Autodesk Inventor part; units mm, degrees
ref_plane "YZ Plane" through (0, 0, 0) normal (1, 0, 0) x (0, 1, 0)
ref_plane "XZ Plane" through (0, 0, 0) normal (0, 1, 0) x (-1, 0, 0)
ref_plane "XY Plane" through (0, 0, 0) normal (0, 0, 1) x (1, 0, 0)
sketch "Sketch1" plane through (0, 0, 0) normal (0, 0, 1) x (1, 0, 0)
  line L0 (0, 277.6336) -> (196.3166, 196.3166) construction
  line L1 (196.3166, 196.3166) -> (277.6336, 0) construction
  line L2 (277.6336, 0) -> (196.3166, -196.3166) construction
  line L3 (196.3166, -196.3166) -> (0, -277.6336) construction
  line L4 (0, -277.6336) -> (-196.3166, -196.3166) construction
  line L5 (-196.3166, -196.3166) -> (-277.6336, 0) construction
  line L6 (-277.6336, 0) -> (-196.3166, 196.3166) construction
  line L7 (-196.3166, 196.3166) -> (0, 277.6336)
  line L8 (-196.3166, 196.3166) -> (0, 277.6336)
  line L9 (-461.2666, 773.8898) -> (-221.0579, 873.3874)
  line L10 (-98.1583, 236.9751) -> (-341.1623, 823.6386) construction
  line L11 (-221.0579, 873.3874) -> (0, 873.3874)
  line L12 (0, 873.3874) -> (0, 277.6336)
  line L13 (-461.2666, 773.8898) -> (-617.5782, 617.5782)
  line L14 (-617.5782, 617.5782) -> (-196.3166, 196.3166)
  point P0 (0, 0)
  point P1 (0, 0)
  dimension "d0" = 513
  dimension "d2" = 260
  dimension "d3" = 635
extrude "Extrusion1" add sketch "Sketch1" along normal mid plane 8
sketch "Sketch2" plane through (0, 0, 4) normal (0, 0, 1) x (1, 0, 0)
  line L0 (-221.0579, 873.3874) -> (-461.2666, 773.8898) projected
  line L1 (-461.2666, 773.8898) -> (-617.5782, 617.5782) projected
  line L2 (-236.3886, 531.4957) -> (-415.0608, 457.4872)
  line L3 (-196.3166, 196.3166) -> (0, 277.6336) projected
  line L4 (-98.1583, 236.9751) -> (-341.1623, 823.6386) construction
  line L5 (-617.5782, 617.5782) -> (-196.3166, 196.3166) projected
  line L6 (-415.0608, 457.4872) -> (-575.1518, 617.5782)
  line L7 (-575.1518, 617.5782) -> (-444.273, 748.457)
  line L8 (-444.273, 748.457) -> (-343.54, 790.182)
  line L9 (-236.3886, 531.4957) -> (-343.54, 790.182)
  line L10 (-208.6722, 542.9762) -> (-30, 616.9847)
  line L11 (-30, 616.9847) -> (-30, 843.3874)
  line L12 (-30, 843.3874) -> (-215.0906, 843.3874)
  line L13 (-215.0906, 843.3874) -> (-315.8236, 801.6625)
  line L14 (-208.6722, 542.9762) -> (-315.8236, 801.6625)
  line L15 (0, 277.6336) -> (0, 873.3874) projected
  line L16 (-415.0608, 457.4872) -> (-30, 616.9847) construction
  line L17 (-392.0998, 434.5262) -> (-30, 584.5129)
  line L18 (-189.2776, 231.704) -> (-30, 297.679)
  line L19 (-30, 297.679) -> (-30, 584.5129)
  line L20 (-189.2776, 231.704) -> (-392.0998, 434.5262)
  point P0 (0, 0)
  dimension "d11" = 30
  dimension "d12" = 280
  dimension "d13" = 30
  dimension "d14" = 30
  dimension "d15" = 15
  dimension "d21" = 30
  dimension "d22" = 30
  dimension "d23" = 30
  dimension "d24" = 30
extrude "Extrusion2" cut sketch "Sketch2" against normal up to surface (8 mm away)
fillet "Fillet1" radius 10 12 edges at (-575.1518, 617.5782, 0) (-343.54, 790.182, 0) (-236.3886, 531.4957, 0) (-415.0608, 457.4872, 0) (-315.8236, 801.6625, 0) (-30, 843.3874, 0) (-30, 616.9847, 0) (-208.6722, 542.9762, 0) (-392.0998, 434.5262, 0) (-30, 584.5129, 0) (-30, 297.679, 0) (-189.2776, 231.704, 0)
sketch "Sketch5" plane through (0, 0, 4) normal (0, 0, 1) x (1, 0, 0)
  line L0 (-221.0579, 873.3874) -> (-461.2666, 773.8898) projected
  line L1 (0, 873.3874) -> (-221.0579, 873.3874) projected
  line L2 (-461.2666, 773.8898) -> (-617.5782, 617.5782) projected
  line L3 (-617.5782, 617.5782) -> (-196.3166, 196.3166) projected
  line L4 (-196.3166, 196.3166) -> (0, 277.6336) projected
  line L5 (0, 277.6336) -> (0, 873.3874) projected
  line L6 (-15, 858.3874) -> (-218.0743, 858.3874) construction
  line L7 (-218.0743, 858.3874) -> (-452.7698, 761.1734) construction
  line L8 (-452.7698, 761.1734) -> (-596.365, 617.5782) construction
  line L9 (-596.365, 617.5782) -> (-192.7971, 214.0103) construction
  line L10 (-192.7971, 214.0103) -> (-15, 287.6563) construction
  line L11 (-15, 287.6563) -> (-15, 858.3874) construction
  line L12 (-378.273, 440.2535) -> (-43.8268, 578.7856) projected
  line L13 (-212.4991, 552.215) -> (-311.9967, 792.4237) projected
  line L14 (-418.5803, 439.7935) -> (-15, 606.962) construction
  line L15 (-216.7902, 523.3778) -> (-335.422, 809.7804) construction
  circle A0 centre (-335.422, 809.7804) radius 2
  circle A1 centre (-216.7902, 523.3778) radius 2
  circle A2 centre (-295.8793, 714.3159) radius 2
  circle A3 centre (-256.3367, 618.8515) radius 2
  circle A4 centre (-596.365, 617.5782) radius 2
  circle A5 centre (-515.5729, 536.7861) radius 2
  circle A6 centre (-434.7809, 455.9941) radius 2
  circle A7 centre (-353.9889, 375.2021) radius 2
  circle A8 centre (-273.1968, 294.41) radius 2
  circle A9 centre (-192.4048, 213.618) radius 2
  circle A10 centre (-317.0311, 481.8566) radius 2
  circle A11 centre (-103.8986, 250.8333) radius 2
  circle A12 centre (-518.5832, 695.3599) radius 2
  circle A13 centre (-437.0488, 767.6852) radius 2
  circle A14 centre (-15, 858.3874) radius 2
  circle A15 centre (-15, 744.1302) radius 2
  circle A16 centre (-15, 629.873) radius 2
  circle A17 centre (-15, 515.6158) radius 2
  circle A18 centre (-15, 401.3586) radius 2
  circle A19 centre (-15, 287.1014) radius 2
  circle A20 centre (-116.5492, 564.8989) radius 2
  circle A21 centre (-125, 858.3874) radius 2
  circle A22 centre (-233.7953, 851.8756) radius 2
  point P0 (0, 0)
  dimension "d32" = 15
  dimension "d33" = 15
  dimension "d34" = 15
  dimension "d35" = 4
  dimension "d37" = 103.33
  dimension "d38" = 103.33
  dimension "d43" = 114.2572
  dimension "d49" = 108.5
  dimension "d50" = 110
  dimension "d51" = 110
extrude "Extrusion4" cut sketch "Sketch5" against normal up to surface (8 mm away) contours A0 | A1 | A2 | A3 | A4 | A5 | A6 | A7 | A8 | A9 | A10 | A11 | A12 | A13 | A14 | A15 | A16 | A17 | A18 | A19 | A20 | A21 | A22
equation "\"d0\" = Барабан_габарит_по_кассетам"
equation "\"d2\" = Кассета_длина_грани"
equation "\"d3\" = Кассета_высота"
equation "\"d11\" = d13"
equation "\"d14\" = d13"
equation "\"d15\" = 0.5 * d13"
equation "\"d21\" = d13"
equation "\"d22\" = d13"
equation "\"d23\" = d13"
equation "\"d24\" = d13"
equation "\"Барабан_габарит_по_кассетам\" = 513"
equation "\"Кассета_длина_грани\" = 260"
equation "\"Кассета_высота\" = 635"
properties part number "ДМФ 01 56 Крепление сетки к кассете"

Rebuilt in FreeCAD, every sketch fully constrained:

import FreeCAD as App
import Part
import Sketcher
from FreeCAD import Vector
Q = App.Units.Quantity


def edges_at(feature, points):
    """Names of the edges that pass closest to the given points."""
    edges = feature.Shape.Edges
    near = lambda p: min(range(len(edges)), key=lambda i: edges[i].distToShape(Part.Vertex(*p))[0])
    return sorted({f"Edge{near(p) + 1}" for p in points})

doc = App.newDocument("Part")
params = doc.addObject("Spreadsheet::Sheet", "Params")
for row, (alias, value) in enumerate([
    ("sketch1_length", "260 mm"),
    ("pad1_length", "8 mm"),
    ("sketch2_length", "280 mm"),
    ("pocket1_length", "8 mm"),
    ("fillet_radius", "10 mm"),
    ("sketch3_diameter", "4 mm"),
    ("pocket2_length", "8 mm"),
], start=1):
    params.set(f"A{row}", alias)
    params.set(f"B{row}", "=" + value)
    params.setAlias(f"B{row}", alias)

body = doc.addObject("PartDesign::Body", "Body")

# Sketch on XY plane
sketch1 = doc.addObject("Sketcher::SketchObject", "Sketch")
body.addObject(sketch1)
sketch1.AttachmentSupport = (doc.XY_Plane, [""])
sketch1.MapMode = "FlatFace"
sketch1.addGeometry([
    Part.LineSegment(Vector(-618, 618, 0), Vector(-196, 196, 0)),  # 0
    Part.LineSegment(Vector(-196, 196, 0), Vector(0, 278, 0)),  # 1
    Part.LineSegment(Vector(0, 278, 0), Vector(0, 873, 0)),  # 2
    Part.LineSegment(Vector(0, 873, 0), Vector(-221, 873, 0)),  # 3
    Part.LineSegment(Vector(-221, 873, 0), Vector(-461, 774, 0)),  # 4
    Part.LineSegment(Vector(-461, 774, 0), Vector(-618, 618, 0)),  # 5
], False)
sketch1.addConstraint([
    Sketcher.Constraint("Coincident", 0, 2, 1, 1),
    Sketcher.Constraint("Coincident", 1, 2, 2, 1),
    Sketcher.Constraint("Coincident", 2, 2, 3, 1),
    Sketcher.Constraint("Coincident", 3, 2, 4, 1),
    Sketcher.Constraint("Coincident", 4, 2, 5, 1),
    Sketcher.Constraint("Coincident", 5, 2, 0, 1),
    Sketcher.Constraint("Vertical", 2),
    Sketcher.Constraint("Horizontal", 3),
    Sketcher.Constraint("PointOnObject", 1, 2, -2),
    Sketcher.Constraint("Parallel", 1, 4),
    Sketcher.Constraint("Perpendicular", 0, 5),
    Sketcher.Constraint("Distance", 4, 260.0),
    Sketcher.Constraint("Angle", 0, Q("-45 deg")),
    Sketcher.Constraint("Angle", 1, Q("22.5 deg")),
    Sketcher.Constraint("DistanceX", 3, 2, 3, 1, 221.058),
    Sketcher.Constraint("DistanceX", 4, 2, 0, 2, 264.95),
    Sketcher.Constraint("Distance", 5, 221.058),
    Sketcher.Constraint("DistanceY", -1, 1, 0, 2, 196.3166),
])
sketch1.setExpression("Constraints[11]", "Params.sketch1_length")
pad1 = doc.addObject("PartDesign::Pad", "Pad")
body.addObject(pad1)
pad1.Profile = sketch1
pad1.setExpression("Length", "Params.pad1_length")
pad1.Midplane = True

# Sketch on XY plane
sketch2 = doc.addObject("Sketcher::SketchObject", "Sketch001")
body.addObject(sketch2)
sketch2.AttachmentSupport = (doc.XY_Plane, [""])
sketch2.MapMode = "FlatFace"
sketch2.AttachmentOffset = App.Placement(Vector(0, 0, 4), App.Rotation())
sketch2.addGeometry([
    Part.LineSegment(Vector(-415, 457, 0), Vector(-236, 531, 0)),  # 0
    Part.LineSegment(Vector(-236, 531, 0), Vector(-344, 790, 0)),  # 1
    Part.LineSegment(Vector(-344, 790, 0), Vector(-444, 748, 0)),  # 2
    Part.LineSegment(Vector(-444, 748, 0), Vector(-575, 618, 0)),  # 3
    Part.LineSegment(Vector(-575, 618, 0), Vector(-415, 457, 0)),  # 4
    Part.LineSegment(Vector(-316, 802, 0), Vector(-209, 543, 0)),  # 5
    Part.LineSegment(Vector(-209, 543, 0), Vector(-30, 617, 0)),  # 6
    Part.LineSegment(Vector(-30, 617, 0), Vector(-30, 843, 0)),  # 7
    Part.LineSegment(Vector(-30, 843, 0), Vector(-215, 843, 0)),  # 8
    Part.LineSegment(Vector(-215, 843, 0), Vector(-316, 802, 0)),  # 9
    Part.LineSegment(Vector(-30, 585, 0), Vector(-392, 435, 0)),  # 10
    Part.LineSegment(Vector(-392, 435, 0), Vector(-189, 232, 0)),  # 11
    Part.LineSegment(Vector(-189, 232, 0), Vector(-30, 298, 0)),  # 12
    Part.LineSegment(Vector(-30, 298, 0), Vector(-30, 585, 0)),  # 13
], False)
sketch2.addConstraint([
    Sketcher.Constraint("Coincident", 0, 2, 1, 1),
    Sketcher.Constraint("Coincident", 1, 2, 2, 1),
    Sketcher.Constraint("Coincident", 2, 2, 3, 1),
    Sketcher.Constraint("Coincident", 3, 2, 4, 1),
    Sketcher.Constraint("Coincident", 4, 2, 0, 1),
    Sketcher.Constraint("Coincident", 5, 2, 6, 1),
    Sketcher.Constraint("Coincident", 6, 2, 7, 1),
    Sketcher.Constraint("Coincident", 7, 2, 8, 1),
    Sketcher.Constraint("Coincident", 8, 2, 9, 1),
    Sketcher.Constraint("Coincident", 9, 2, 5, 1),
    Sketcher.Constraint("Coincident", 10, 2, 11, 1),
    Sketcher.Constraint("Coincident", 11, 2, 12, 1),
    Sketcher.Constraint("Coincident", 12, 2, 13, 1),
    Sketcher.Constraint("Coincident", 13, 2, 10, 1),
    Sketcher.Constraint("Vertical", 7),
    Sketcher.Constraint("Horizontal", 8),
    Sketcher.Constraint("Vertical", 13),
    Sketcher.Constraint("Perpendicular", 0, 1),
    Sketcher.Constraint("Perpendicular", 1, 2),
    Sketcher.Constraint("Perpendicular", 3, 4),
    Sketcher.Constraint("Perpendicular", 2, 5),
    Sketcher.Constraint("Perpendicular", 5, 6),
    Sketcher.Constraint("Parallel", 6, 9),
    Sketcher.Constraint("Parallel", 9, 10),
    Sketcher.Constraint("Parallel", 4, 11),
    Sketcher.Constraint("Parallel", 10, 12),
    Sketcher.Constraint("Vertical", 7, 2, 12, 2),
    Sketcher.Constraint("Equal", 1, 5),
    Sketcher.Constraint("Equal", 0, 6),
    Sketcher.Constraint("Equal", 2, 9),
    Sketcher.Constraint("Distance", 1, 280.0),
    Sketcher.Constraint("DistanceX", 6, 2, -1, 1, 30.0),
    Sketcher.Constraint("Angle", 3, Q("-135 deg")),
    Sketcher.Constraint("Angle", 0, Q("22.5 deg")),
    Sketcher.Constraint("DistanceY", 13, 1, 13, 2, 286.834),
    Sketcher.Constraint("DistanceX", 1, 2, -1, 1, 343.54),
    Sketcher.Constraint("DistanceY", 10, 2, 5, 2, 108.45),
    Sketcher.Constraint("Distance", 10, 391.934),
    Sketcher.Constraint("DistanceX", 8, 2, 8, 1, 185.0906),
    Sketcher.Constraint("DistanceY", -1, 1, 1, 2, 790.182),
    Sketcher.Constraint("DistanceX", 2, 2, -1, 1, 444.273),
    Sketcher.Constraint("DistanceY", -1, 1, 11, 2, 231.704),
])
sketch2.setExpression("Constraints[30]", "Params.sketch2_length")
pocket1 = doc.addObject("PartDesign::Pocket", "Pocket")
body.addObject(pocket1)
pocket1.Profile = sketch2
pocket1.setExpression("Length", "Params.pocket1_length")
doc.recompute()

fillet = doc.addObject("PartDesign::Fillet", "Fillet")
body.addObject(fillet)
fillet.Base = (pocket1, edges_at(pocket1, [
    (-575.152, 617.578, 0),
    (-343.54, 790.182, 0),
    (-236.389, 531.496, 0),
    (-415.061, 457.487, 0),
    (-315.824, 801.663, 0),
    (-30, 843.387, 0),
    (-30, 616.985, 0),
    (-208.672, 542.976, 0),
    (-392.1, 434.526, 0),
    (-30, 584.513, 0),
    (-30, 297.679, 0),
    (-189.278, 231.704, 0),
]))
fillet.setExpression("Radius", "Params.fillet_radius")

# Sketch on XY plane
sketch3 = doc.addObject("Sketcher::SketchObject", "Sketch002")
body.addObject(sketch3)
sketch3.AttachmentSupport = (doc.XY_Plane, [""])
sketch3.MapMode = "FlatFace"
sketch3.AttachmentOffset = App.Placement(Vector(0, 0, 4), App.Rotation())
sketch3.addGeometry([
    Part.Circle(Vector(-335.4, 809.8, 0), Vector(0, 0, 1), 2),  # 0
    Part.Circle(Vector(-216.8, 523.4, 0), Vector(0, 0, 1), 2),  # 1
    Part.Circle(Vector(-295.9, 714.3, 0), Vector(0, 0, 1), 2),  # 2
    Part.Circle(Vector(-256.3, 618.9, 0), Vector(0, 0, 1), 2),  # 3
    Part.Circle(Vector(-596.4, 617.6, 0), Vector(0, 0, 1), 2),  # 4
    Part.Circle(Vector(-515.6, 536.8, 0), Vector(0, 0, 1), 2),  # 5
    Part.Circle(Vector(-434.8, 456, 0), Vector(0, 0, 1), 2),  # 6
    Part.Circle(Vector(-354, 375.2, 0), Vector(0, 0, 1), 2),  # 7
    Part.Circle(Vector(-273.2, 294.4, 0), Vector(0, 0, 1), 2),  # 8
    Part.Circle(Vector(-192.4, 213.6, 0), Vector(0, 0, 1), 2),  # 9
    Part.Circle(Vector(-317, 481.9, 0), Vector(0, 0, 1), 2),  # 10
    Part.Circle(Vector(-103.9, 250.8, 0), Vector(0, 0, 1), 2),  # 11
    Part.Circle(Vector(-518.6, 695.4, 0), Vector(0, 0, 1), 2),  # 12
    Part.Circle(Vector(-437, 767.7, 0), Vector(0, 0, 1), 2),  # 13
    Part.Circle(Vector(-15, 858.4, 0), Vector(0, 0, 1), 2),  # 14
    Part.Circle(Vector(-15, 744.1, 0), Vector(0, 0, 1), 2),  # 15
    Part.Circle(Vector(-15, 629.9, 0), Vector(0, 0, 1), 2),  # 16
    Part.Circle(Vector(-15, 515.6, 0), Vector(0, 0, 1), 2),  # 17
    Part.Circle(Vector(-15, 401.4, 0), Vector(0, 0, 1), 2),  # 18
    Part.Circle(Vector(-15, 287.1, 0), Vector(0, 0, 1), 2),  # 19
    Part.Circle(Vector(-116.5, 564.9, 0), Vector(0, 0, 1), 2),  # 20
    Part.Circle(Vector(-125, 858.4, 0), Vector(0, 0, 1), 2),  # 21
    Part.Circle(Vector(-233.8, 851.9, 0), Vector(0, 0, 1), 2),  # 22
], False)
sketch3.addConstraint([
    Sketcher.Constraint("Equal", 0, 1),
    Sketcher.Constraint("Equal", 1, 2),
    Sketcher.Constraint("Equal", 2, 3),
    Sketcher.Constraint("Equal", 3, 4),
    Sketcher.Constraint("Equal", 4, 5),
    Sketcher.Constraint("Equal", 5, 6),
    Sketcher.Constraint("Equal", 6, 7),
    Sketcher.Constraint("Equal", 7, 8),
    Sketcher.Constraint("Equal", 8, 9),
    Sketcher.Constraint("Equal", 9, 10),
    Sketcher.Constraint("Equal", 10, 11),
    Sketcher.Constraint("Equal", 11, 12),
    Sketcher.Constraint("Equal", 12, 13),
    Sketcher.Constraint("Equal", 13, 14),
    Sketcher.Constraint("Equal", 14, 15),
    Sketcher.Constraint("Equal", 15, 16),
    Sketcher.Constraint("Equal", 16, 17),
    Sketcher.Constraint("Equal", 17, 18),
    Sketcher.Constraint("Equal", 18, 19),
    Sketcher.Constraint("Equal", 19, 20),
    Sketcher.Constraint("Equal", 20, 21),
    Sketcher.Constraint("Equal", 21, 22),
    Sketcher.Constraint("Horizontal", 14, 3, 21, 3),
    Sketcher.Constraint("Vertical", 14, 3, 15, 3),
    Sketcher.Constraint("Vertical", 15, 3, 16, 3),
    Sketcher.Constraint("Vertical", 16, 3, 17, 3),
    Sketcher.Constraint("Vertical", 17, 3, 18, 3),
    Sketcher.Constraint("Vertical", 18, 3, 19, 3),
    Sketcher.Constraint("Diameter", 0, 4.0),
    Sketcher.Constraint("DistanceX", 14, 3, -1, 1, 15.0),
    Sketcher.Constraint("DistanceX", 21, 3, 14, 3, 110.0),
    Sketcher.Constraint("DistanceY", 15, 3, 14, 3, 114.2572),
    Sketcher.Constraint("DistanceY", 16, 3, 15, 3, 114.2572),
    Sketcher.Constraint("DistanceY", 17, 3, 16, 3, 114.2572),
    Sketcher.Constraint("DistanceY", 18, 3, 17, 3, 114.2572),
    Sketcher.Constraint("DistanceY", 19, 3, 18, 3, 114.2572),
    Sketcher.Constraint("DistanceY", -1, 1, 8, 3, 294.41),
    Sketcher.Constraint("DistanceY", -1, 1, 12, 3, 695.36),
    Sketcher.Constraint("DistanceX", 8, 3, 3, 3, 16.86),
    Sketcher.Constraint("DistanceX", 0, 3, -1, 1, 335.422),
    Sketcher.Constraint("DistanceY", -1, 1, 2, 3, 714.316),
    Sketcher.Constraint("DistanceX", 4, 3, -1, 1, 596.365),
    Sketcher.Constraint("DistanceX", 5, 3, -1, 1, 515.573),
    Sketcher.Constraint("DistanceY", -1, 1, 5, 3, 536.786),
    Sketcher.Constraint("DistanceX", 6, 3, -1, 1, 434.781),
    Sketcher.Constraint("DistanceY", -1, 1, 6, 3, 455.994),
    Sketcher.Constraint("DistanceX", 7, 3, -1, 1, 353.989),
    Sketcher.Constraint("DistanceY", -1, 1, 7, 3, 375.202),
    Sketcher.Constraint("DistanceY", -1, 1, 9, 3, 213.618),
    Sketcher.Constraint("DistanceX", 10, 3, -1, 1, 317.031),
    Sketcher.Constraint("DistanceY", -1, 1, 16, 3, 629.873),
    Sketcher.Constraint("DistanceY", -1, 1, 20, 3, 564.899),
    Sketcher.Constraint("DistanceX", 2, 3, 1, 3, 79.089),
    Sketcher.Constraint("DistanceY", 1, 3, 2, 3, 190.938),
    Sketcher.Constraint("DistanceY", 3, 3, 0, 3, 190.929),
    Sketcher.Constraint("DistanceY", 5, 3, 4, 3, 80.792),
    Sketcher.Constraint("DistanceX", 7, 3, 8, 3, 80.792),
    Sketcher.Constraint("DistanceX", 8, 3, 9, 3, 80.792),
    Sketcher.Constraint("DistanceX", 10, 3, 1, 3, 100.241),
    Sketcher.Constraint("DistanceY", 10, 3, 3, 3, 136.995),
    Sketcher.Constraint("DistanceX", 12, 3, 2, 3, 222.704),
    Sketcher.Constraint("DistanceY", 4, 3, 13, 3, 150.107),
    Sketcher.Constraint("DistanceX", 13, 3, 3, 3, 180.712),
    Sketcher.Constraint("DistanceY", 0, 3, 14, 3, 48.607),
    Sketcher.Constraint("DistanceY", 11, 3, 19, 3, 36.268),
    Sketcher.Constraint("DistanceX", 1, 3, 20, 3, 100.241),
    Sketcher.Constraint("DistanceX", 2, 3, 22, 3, 62.084),
    Sketcher.Constraint("DistanceX", 11, 3, -1, 1, 103.8986),
    Sketcher.Constraint("DistanceY", -1, 1, 22, 3, 851.8756),
])
sketch3.setExpression("Constraints[28]", "Params.sketch3_diameter")
pocket2 = doc.addObject("PartDesign::Pocket", "Pocket001")
body.addObject(pocket2)
pocket2.Profile = sketch3
pocket2.setExpression("Length", "Params.pocket2_length")

doc.recompute()
